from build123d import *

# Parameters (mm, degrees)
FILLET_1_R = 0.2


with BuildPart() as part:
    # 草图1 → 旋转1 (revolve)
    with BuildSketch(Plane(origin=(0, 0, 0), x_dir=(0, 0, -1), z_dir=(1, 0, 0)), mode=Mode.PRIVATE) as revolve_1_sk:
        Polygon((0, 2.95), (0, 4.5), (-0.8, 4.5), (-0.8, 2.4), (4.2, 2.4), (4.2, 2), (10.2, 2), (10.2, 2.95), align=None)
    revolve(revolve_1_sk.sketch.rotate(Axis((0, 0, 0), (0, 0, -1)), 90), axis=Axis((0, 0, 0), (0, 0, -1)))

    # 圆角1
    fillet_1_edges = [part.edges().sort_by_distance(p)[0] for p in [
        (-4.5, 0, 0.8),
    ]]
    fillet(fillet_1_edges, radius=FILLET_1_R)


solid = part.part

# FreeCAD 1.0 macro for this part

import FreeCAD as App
import Part
import Sketcher

V = App.Vector


def edges_at(feature, points):
    """Names of the edges that pass closest to the given points."""
    edges = feature.Shape.Edges
    near = lambda p: min(range(len(edges)), key=lambda i: edges[i].distToShape(Part.Vertex(*p))[0])
    return sorted({f"Edge{near(p) + 1}" for p in points})

doc = App.newDocument("Part")
body = doc.addObject("PartDesign::Body", "Body")

sketch1 = doc.addObject("Sketcher::SketchObject", "Sketch")
body.addObject(sketch1)
sketch1.AttachmentSupport = (doc.YZ_Plane, [""])
sketch1.MapMode = "FlatFace"
sketch1.addGeometry([
    Part.LineSegment(V(2.95, 0, 0), V(4.5, 0, 0)),
    Part.LineSegment(V(4.5, 0, 0), V(4.5, 0.8, 0)),
    Part.LineSegment(V(4.5, 0.8, 0), V(2.4, 0.8, 0)),
    Part.LineSegment(V(2.4, 0.8, 0), V(2.4, -4.2, 0)),
    Part.LineSegment(V(2.4, -4.2, 0), V(2, -4.2, 0)),
    Part.LineSegment(V(2, -4.2, 0), V(2, -10.2, 0)),
    Part.LineSegment(V(2, -10.2, 0), V(2.95, -10.2, 0)),
    Part.LineSegment(V(2.95, -10.2, 0), V(2.95, 0, 0)),
], False)
sketch1.addConstraint([
    Sketcher.Constraint("Coincident", 0, 2, 1, 1),
    Sketcher.Constraint("Coincident", 1, 2, 2, 1),
    Sketcher.Constraint("Coincident", 2, 2, 3, 1),
    Sketcher.Constraint("Coincident", 3, 2, 4, 1),
    Sketcher.Constraint("Coincident", 4, 2, 5, 1),
    Sketcher.Constraint("Coincident", 5, 2, 6, 1),
    Sketcher.Constraint("Coincident", 6, 2, 7, 1),
    Sketcher.Constraint("Coincident", 7, 2, 0, 1),
    Sketcher.Constraint("Horizontal", 0),
    Sketcher.Constraint("Vertical", 1),
    Sketcher.Constraint("Horizontal", 2),
    Sketcher.Constraint("Vertical", 3),
    Sketcher.Constraint("Horizontal", 4),
    Sketcher.Constraint("Vertical", 5),
    Sketcher.Constraint("Horizontal", 6),
    Sketcher.Constraint("Vertical", 7),
    Sketcher.Constraint("PointOnObject", 0, 2, -1),
    Sketcher.Constraint("DistanceY", 3, 2, 3, 1, 5.0),
    Sketcher.Constraint("DistanceY", 5, 2, 5, 1, 6.0),
    Sketcher.Constraint("DistanceX", 2, 2, 2, 1, 2.1),
    Sketcher.Constraint("DistanceX", 4, 2, 4, 1, 0.4),
    Sketcher.Constraint("DistanceY", 1, 1, 1, 2, 0.8),
    Sketcher.Constraint("DistanceX", -1, 1, 4, 2, 2.0),
    Sketcher.Constraint("DistanceX", 0, 1, 0, 2, 1.55),
])
revolution = doc.addObject("PartDesign::Revolution", "Revolution")
body.addObject(revolution)
revolution.Profile = sketch1
revolution.ReferenceAxis = (sketch1, ["V_Axis"])
revolution.Angle = 360
doc.recompute()

fillet = doc.addObject("PartDesign::Fillet", "Fillet")
body.addObject(fillet)
fillet.Base = (revolution, edges_at(revolution, [(-4.5, 0, 0.8)]))
fillet.Radius = 0.2

doc.recompute()
